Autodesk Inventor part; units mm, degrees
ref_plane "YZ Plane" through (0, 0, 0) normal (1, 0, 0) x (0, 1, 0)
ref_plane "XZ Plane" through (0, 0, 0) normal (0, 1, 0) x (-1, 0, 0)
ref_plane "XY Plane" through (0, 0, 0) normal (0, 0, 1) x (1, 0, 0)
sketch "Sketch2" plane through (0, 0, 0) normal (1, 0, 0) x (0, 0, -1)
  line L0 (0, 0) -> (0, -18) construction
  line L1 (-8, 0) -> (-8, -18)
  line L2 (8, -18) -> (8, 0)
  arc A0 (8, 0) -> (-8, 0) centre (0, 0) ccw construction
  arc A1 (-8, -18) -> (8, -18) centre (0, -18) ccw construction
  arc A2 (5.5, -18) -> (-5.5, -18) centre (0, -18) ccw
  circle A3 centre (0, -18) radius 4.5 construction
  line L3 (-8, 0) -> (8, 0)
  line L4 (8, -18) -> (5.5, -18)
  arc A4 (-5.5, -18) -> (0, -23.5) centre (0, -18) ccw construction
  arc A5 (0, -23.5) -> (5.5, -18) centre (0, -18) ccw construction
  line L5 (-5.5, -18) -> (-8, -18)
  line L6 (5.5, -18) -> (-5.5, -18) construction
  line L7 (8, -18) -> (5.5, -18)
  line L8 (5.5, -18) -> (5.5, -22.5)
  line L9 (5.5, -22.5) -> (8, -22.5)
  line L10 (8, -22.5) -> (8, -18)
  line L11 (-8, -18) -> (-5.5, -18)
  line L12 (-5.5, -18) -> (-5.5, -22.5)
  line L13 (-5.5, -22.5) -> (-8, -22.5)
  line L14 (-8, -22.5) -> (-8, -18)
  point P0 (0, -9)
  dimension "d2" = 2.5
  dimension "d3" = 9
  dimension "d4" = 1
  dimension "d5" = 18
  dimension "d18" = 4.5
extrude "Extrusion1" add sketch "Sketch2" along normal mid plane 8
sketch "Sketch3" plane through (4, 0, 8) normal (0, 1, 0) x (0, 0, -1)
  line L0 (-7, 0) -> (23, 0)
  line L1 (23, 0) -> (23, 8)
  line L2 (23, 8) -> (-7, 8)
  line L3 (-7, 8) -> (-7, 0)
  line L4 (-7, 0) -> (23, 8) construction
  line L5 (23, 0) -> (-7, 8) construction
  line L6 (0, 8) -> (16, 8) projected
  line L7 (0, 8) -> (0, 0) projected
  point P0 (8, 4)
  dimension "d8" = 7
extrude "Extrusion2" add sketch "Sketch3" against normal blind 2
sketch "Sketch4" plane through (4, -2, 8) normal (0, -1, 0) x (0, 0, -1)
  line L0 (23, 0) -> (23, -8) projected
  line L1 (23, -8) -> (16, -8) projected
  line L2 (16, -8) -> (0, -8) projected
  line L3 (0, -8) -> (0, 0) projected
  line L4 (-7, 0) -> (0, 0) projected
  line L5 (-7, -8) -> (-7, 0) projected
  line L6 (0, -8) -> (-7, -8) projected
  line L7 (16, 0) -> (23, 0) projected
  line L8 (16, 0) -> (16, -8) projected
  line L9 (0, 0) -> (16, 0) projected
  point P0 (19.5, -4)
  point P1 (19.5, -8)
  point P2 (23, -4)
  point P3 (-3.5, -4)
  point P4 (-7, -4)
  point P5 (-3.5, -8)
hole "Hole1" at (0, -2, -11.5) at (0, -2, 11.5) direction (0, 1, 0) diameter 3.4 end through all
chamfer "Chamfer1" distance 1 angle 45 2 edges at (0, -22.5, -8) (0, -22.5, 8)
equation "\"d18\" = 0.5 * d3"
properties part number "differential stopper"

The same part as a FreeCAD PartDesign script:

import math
import FreeCAD as App
import Part
import Sketcher

V = App.Vector
Q = App.Units.Quantity


def edges_at(feature, points):
    """Names of the edges that pass closest to the given points."""
    edges = feature.Shape.Edges
    near = lambda p: min(range(len(edges)), key=lambda i: edges[i].distToShape(Part.Vertex(*p))[0])
    return sorted({f"Edge{near(p) + 1}" for p in points})


def add_polygon(sketch, points):
    """Adds a closed chain of lines whose ends are joined by coincident constraints."""
    first, n = sketch.GeometryCount, len(points)
    for a, b in zip(points, points[1:] + points[:1]):
        sketch.addGeometry(Part.LineSegment(App.Vector(*a, 0), App.Vector(*b, 0)), False)
    for i in range(n):
        sketch.addConstraint(Sketcher.Constraint("Coincident", first + i, 2, first + (i + 1) % n, 1))

doc = App.newDocument("Part")
body = doc.addObject("PartDesign::Body", "Body")

sketch1 = body.newObject("Sketcher::SketchObject", "Sketch")
sketch1.AttachmentSupport = (doc.getObject("YZ_Plane"), [""])
sketch1.MapMode = "FlatFace"
sketch1.addGeometry(Part.LineSegment(V(0, -8, 0), V(0, 8, 0)), False)
sketch1.addGeometry(Part.LineSegment(V(0, 8, 0), V(-22.5, 8, 0)), False)
sketch1.addGeometry(Part.LineSegment(V(-22.5, 8, 0), V(-22.5, 5.5, 0)), False)
sketch1.addGeometry(Part.LineSegment(V(-22.5, 5.5, 0), V(-18, 5.5, 0)), False)
sketch1.addGeometry(Part.ArcOfCircle(Part.Circle(V(-18, 0, 0), V(0, 0, 1), 5.5), math.radians(-90), math.radians(90)), False)
sketch1.addGeometry(Part.LineSegment(V(-18, -5.5, 0), V(-22.5, -5.5, 0)), False)
sketch1.addGeometry(Part.LineSegment(V(-22.5, -5.5, 0), V(-22.5, -8, 0)), False)
sketch1.addGeometry(Part.LineSegment(V(-22.5, -8, 0), V(0, -8, 0)), False)
sketch1.addConstraint(Sketcher.Constraint("Coincident", 0, 2, 1, 1))
sketch1.addConstraint(Sketcher.Constraint("Coincident", 1, 2, 2, 1))
sketch1.addConstraint(Sketcher.Constraint("Coincident", 2, 2, 3, 1))
sketch1.addConstraint(Sketcher.Constraint("Tangent", 3, 2, 4, 2))
sketch1.addConstraint(Sketcher.Constraint("Tangent", 4, 1, 5, 1))
sketch1.addConstraint(Sketcher.Constraint("Coincident", 5, 2, 6, 1))
sketch1.addConstraint(Sketcher.Constraint("Coincident", 6, 2, 7, 1))
sketch1.addConstraint(Sketcher.Constraint("Coincident", 7, 2, 0, 1))
sketch1.addConstraint(Sketcher.Constraint("Vertical", 0))
sketch1.addConstraint(Sketcher.Constraint("Horizontal", 1))
sketch1.addConstraint(Sketcher.Constraint("Vertical", 2))
sketch1.addConstraint(Sketcher.Constraint("Horizontal", 3))
sketch1.addConstraint(Sketcher.Constraint("Horizontal", 5))
sketch1.addConstraint(Sketcher.Constraint("Vertical", 6))
sketch1.addConstraint(Sketcher.Constraint("Horizontal", 7))
sketch1.addConstraint(Sketcher.Constraint("Symmetric", 0, 2, 7, 2, -1, 1))
sketch1.addConstraint(Sketcher.Constraint("Symmetric", 2, 2, 5, 2, -1))
sketch1.addConstraint(Sketcher.Constraint("DistanceX", 3, 1, 3, 2, Q("4.5 mm")))
sketch1.addConstraint(Sketcher.Constraint("DistanceY", 2, 2, 2, 1, Q("2.5 mm")))
sketch1.addConstraint(Sketcher.Constraint("DistanceX", 4, 3, -1, 1, Q("18 mm")))
sketch1.addConstraint(Sketcher.Constraint("Radius", 4, Q("5.5 mm")))
pad1 = body.newObject("PartDesign::Pad", "Pad")
pad1.Profile = sketch1
pad1.Length = 8
pad1.Midplane = True

sketch2 = body.newObject("Sketcher::SketchObject", "Sketch001")
sketch2.AttachmentSupport = (doc.getObject("XZ_Plane"), [""])
sketch2.MapMode = "FlatFace"
add_polygon(sketch2, [(-4, 15), (4, 15), (4, -15), (-4, -15)])
sketch2.addConstraint(Sketcher.Constraint("Horizontal", 0))
sketch2.addConstraint(Sketcher.Constraint("Vertical", 1))
sketch2.addConstraint(Sketcher.Constraint("Horizontal", 2))
sketch2.addConstraint(Sketcher.Constraint("Vertical", 3))
sketch2.addConstraint(Sketcher.Constraint("Symmetric", 0, 2, 2, 2, -1, 1))
sketch2.addConstraint(Sketcher.Constraint("DistanceX", 0, 1, 0, 2, Q("8 mm")))
sketch2.addConstraint(Sketcher.Constraint("DistanceY", 1, 2, 1, 1, Q("30 mm")))
pad2 = body.newObject("PartDesign::Pad", "Pad001")
pad2.Profile = sketch2
pad2.Length = 2

sketch3 = body.newObject("Sketcher::SketchObject", "Sketch002")
sketch3.AttachmentSupport = (doc.getObject("XZ_Plane"), [""])
sketch3.MapMode = "FlatFace"
sketch3.AttachmentOffset = App.Placement(V(0, 0, 2), App.Rotation())
sketch3.addGeometry(Part.Circle(V(0, -11.5, 0), V(0, 0, 1), 1.7), False)
sketch3.addGeometry(Part.Circle(V(0, 11.5, 0), V(0, 0, 1), 1.7), False)
sketch3.addConstraint(Sketcher.Constraint("Equal", 0, 1))
sketch3.addConstraint(Sketcher.Constraint("Symmetric", 0, 3, 1, 3, -1, 1))
sketch3.addConstraint(Sketcher.Constraint("PointOnObject", 0, 3, -2))
sketch3.addConstraint(Sketcher.Constraint("Diameter", 0, Q("3.4 mm")))
sketch3.addConstraint(Sketcher.Constraint("DistanceY", 0, 3, 1, 3, Q("23 mm")))
doc.recompute()
hole = body.newObject("PartDesign::Hole", "Hole")
hole.Profile = sketch3
hole.ThreadType = "None"
hole.Diameter = 3.4
hole.DepthType = "ThroughAll"
doc.recompute()

chamfer = body.newObject("PartDesign::Chamfer", "Chamfer")
chamfer.Base = (hole, edges_at(hole, [(0, -22.5, -8), (0, -22.5, 8)]))
chamfer.Size = 1

doc.recompute()
